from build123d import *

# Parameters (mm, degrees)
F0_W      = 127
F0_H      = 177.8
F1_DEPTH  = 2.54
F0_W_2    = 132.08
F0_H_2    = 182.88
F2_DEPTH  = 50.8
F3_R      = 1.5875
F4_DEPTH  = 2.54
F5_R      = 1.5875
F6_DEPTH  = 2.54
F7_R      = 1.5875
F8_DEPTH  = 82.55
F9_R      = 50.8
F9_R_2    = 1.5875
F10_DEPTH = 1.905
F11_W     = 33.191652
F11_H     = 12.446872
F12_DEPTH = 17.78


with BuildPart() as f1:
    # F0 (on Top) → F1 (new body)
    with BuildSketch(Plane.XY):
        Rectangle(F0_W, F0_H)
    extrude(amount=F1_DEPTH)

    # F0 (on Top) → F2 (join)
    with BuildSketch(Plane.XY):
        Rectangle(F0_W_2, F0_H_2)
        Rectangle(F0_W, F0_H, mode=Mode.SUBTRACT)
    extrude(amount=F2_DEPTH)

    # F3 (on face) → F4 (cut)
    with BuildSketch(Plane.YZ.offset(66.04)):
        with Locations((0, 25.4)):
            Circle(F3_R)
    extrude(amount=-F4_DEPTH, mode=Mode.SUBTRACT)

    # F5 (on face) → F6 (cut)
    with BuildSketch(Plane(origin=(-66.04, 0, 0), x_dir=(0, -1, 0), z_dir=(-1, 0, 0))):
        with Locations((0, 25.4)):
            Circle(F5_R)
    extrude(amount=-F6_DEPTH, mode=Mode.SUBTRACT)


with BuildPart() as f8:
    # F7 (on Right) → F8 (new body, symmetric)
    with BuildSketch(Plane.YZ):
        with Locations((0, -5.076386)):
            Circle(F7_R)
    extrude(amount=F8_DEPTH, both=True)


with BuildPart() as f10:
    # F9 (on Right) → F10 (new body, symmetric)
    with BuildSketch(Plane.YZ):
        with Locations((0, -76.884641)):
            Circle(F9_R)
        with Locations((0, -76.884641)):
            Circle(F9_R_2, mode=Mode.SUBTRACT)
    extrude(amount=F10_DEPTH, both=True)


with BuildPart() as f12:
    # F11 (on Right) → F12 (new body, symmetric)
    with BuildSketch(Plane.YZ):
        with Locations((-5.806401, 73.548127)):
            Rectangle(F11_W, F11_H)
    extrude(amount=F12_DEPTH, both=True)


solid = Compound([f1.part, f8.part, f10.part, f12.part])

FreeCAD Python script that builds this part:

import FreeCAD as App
import Part
import Sketcher
from FreeCAD import Vector
Q = App.Units.Quantity

doc = App.newDocument("Part")
body = doc.addObject("PartDesign::Body", "Body")

# Sketch on XY plane
sketch1 = body.newObject("Sketcher::SketchObject", "Sketch")
sketch1.AttachmentSupport = (doc.getObject("XY_Plane"), [""])
sketch1.MapMode = "FlatFace"
sketch1.addGeometry([
    Part.LineSegment(Vector(-63.5, 88.9, 0), Vector(-63.5, -88.9, 0)),
    Part.LineSegment(Vector(-63.5, -88.9, 0), Vector(63.5, -88.9, 0)),
    Part.LineSegment(Vector(63.5, -88.9, 0), Vector(63.5, 88.9, 0)),
    Part.LineSegment(Vector(63.5, 88.9, 0), Vector(-63.5, 88.9, 0)),
], False)
sketch1.addConstraint([
    Sketcher.Constraint("Coincident", 0, 2, 1, 1),
    Sketcher.Constraint("Coincident", 1, 2, 2, 1),
    Sketcher.Constraint("Coincident", 2, 2, 3, 1),
    Sketcher.Constraint("Coincident", 3, 2, 0, 1),
    Sketcher.Constraint("Vertical", 0),
    Sketcher.Constraint("Horizontal", 1),
    Sketcher.Constraint("Vertical", 2),
    Sketcher.Constraint("Horizontal", 3),
    Sketcher.Constraint("Symmetric", 0, 2, 2, 2, -1, 1),
    Sketcher.Constraint("DistanceX", 1, 1, 1, 2, Q("5 in")),
    Sketcher.Constraint("DistanceY", 0, 2, 0, 1, Q("7 in")),
])
pad1 = body.newObject("PartDesign::Pad", "Pad")
pad1.Profile = sketch1
pad1.Length = Q("0.1 in")

# Sketch on XY plane
sketch2 = body.newObject("Sketcher::SketchObject", "Sketch001")
sketch2.AttachmentSupport = (doc.getObject("XY_Plane"), [""])
sketch2.MapMode = "FlatFace"
sketch2.addGeometry([
    Part.LineSegment(Vector(-66.04, 91.44, 0), Vector(-66.04, -91.44, 0)),  # 0
    Part.LineSegment(Vector(-66.04, -91.44, 0), Vector(66.04, -91.44, 0)),  # 1
    Part.LineSegment(Vector(66.04, -91.44, 0), Vector(66.04, 91.44, 0)),  # 2
    Part.LineSegment(Vector(66.04, 91.44, 0), Vector(-66.04, 91.44, 0)),  # 3
    Part.LineSegment(Vector(63.5, -88.9, 0), Vector(-63.5, -88.9, 0)),  # 4
    Part.LineSegment(Vector(-63.5, -88.9, 0), Vector(-63.5, 88.9, 0)),  # 5
    Part.LineSegment(Vector(-63.5, 88.9, 0), Vector(63.5, 88.9, 0)),  # 6
    Part.LineSegment(Vector(63.5, 88.9, 0), Vector(63.5, -88.9, 0)),  # 7
], False)
sketch2.addConstraint([
    Sketcher.Constraint("Coincident", 0, 2, 1, 1),
    Sketcher.Constraint("Coincident", 1, 2, 2, 1),
    Sketcher.Constraint("Coincident", 2, 2, 3, 1),
    Sketcher.Constraint("Coincident", 3, 2, 0, 1),
    Sketcher.Constraint("Coincident", 4, 2, 5, 1),
    Sketcher.Constraint("Coincident", 5, 2, 6, 1),
    Sketcher.Constraint("Coincident", 6, 2, 7, 1),
    Sketcher.Constraint("Coincident", 7, 2, 4, 1),
    Sketcher.Constraint("Vertical", 0),
    Sketcher.Constraint("Horizontal", 1),
    Sketcher.Constraint("Vertical", 2),
    Sketcher.Constraint("Horizontal", 3),
    Sketcher.Constraint("Horizontal", 4),
    Sketcher.Constraint("Vertical", 5),
    Sketcher.Constraint("Horizontal", 6),
    Sketcher.Constraint("Vertical", 7),
    Sketcher.Constraint("Symmetric", 0, 2, 2, 2, -1, 1),
    Sketcher.Constraint("Symmetric", 4, 2, 6, 2, -1, 1),
    Sketcher.Constraint("DistanceX", 4, 2, 4, 1, Q("5 in")),
    Sketcher.Constraint("DistanceY", 5, 1, 5, 2, Q("7 in")),
    Sketcher.Constraint("DistanceX", 1, 1, 1, 2, Q("5.2 in")),
    Sketcher.Constraint("DistanceY", 0, 2, 0, 1, Q("7.2 in")),
])
pad2 = body.newObject("PartDesign::Pad", "Pad001")
pad2.Profile = sketch2
pad2.Length = Q("2 in")

# Sketch on YZ plane
sketch3 = body.newObject("Sketcher::SketchObject", "Sketch002")
sketch3.AttachmentSupport = (doc.getObject("YZ_Plane"), [""])
sketch3.MapMode = "FlatFace"
sketch3.AttachmentOffset = App.Placement(Vector(0, 0, 2.6 * 25.4), App.Rotation())
sketch3.addGeometry(Part.Circle(Vector(0, 25.4, 0), Vector(0, 0, 1), 1.5875), False)
sketch3.addConstraint([
    Sketcher.Constraint("PointOnObject", 0, 3, -2),
    Sketcher.Constraint("Diameter", 0, Q("0.125 in")),
    Sketcher.Constraint("DistanceY", -1, 1, 0, 3, Q("1 in")),
])
pocket1 = body.newObject("PartDesign::Pocket", "Pocket")
pocket1.Profile = sketch3
pocket1.Length = Q("0.1 in")

# Sketch on YZ plane
sketch4 = body.newObject("Sketcher::SketchObject", "Sketch003")
sketch4.AttachmentSupport = (doc.getObject("YZ_Plane"), [""])
sketch4.MapMode = "FlatFace"
sketch4.AttachmentOffset = App.Placement(Vector(0, 0, -2.6 * 25.4), App.Rotation())
sketch4.addGeometry(Part.Circle(Vector(0, 25.4, 0), Vector(0, 0, 1), 1.5875), False)
sketch4.addConstraint([
    Sketcher.Constraint("PointOnObject", 0, 3, -2),
    Sketcher.Constraint("Diameter", 0, Q("0.125 in")),
    Sketcher.Constraint("DistanceY", -1, 1, 0, 3, Q("1 in")),
])
pocket2 = body.newObject("PartDesign::Pocket", "Pocket001")
pocket2.Profile = sketch4
pocket2.Length = Q("0.1 in")
pocket2.Reversed = True
body2 = doc.addObject("PartDesign::Body", "Body001")

# Sketch on YZ plane
sketch5 = body2.newObject("Sketcher::SketchObject", "Sketch004")
sketch5.AttachmentSupport = (doc.getObject("YZ_Plane001"), [""])
sketch5.MapMode = "FlatFace"
sketch5.addGeometry(Part.Circle(Vector(0, -5.076386, 0), Vector(0, 0, 1), 1.5875), False)
sketch5.addConstraint([
    Sketcher.Constraint("PointOnObject", 0, 3, -2),
    Sketcher.Constraint("Diameter", 0, Q("0.125 in")),
    Sketcher.Constraint("DistanceY", 0, 3, -1, 1, Q("5.076386 mm")),
])
pad3 = body2.newObject("PartDesign::Pad", "Pad002")
pad3.Profile = sketch5
pad3.Length = Q("6.5 in")
pad3.Midplane = True
body3 = doc.addObject("PartDesign::Body", "Body002")

# Sketch on YZ plane
sketch6 = body3.newObject("Sketcher::SketchObject", "Sketch005")
sketch6.AttachmentSupport = (doc.getObject("YZ_Plane002"), [""])
sketch6.MapMode = "FlatFace"
sketch6.addGeometry([
    Part.Circle(Vector(0, -76.884641, 0), Vector(0, 0, 1), 50.8),
    Part.Circle(Vector(0, -76.884641, 0), Vector(0, 0, 1), 1.5875),
], False)
sketch6.addConstraint([
    Sketcher.Constraint("Coincident", 1, 3, 0, 3),
    Sketcher.Constraint("PointOnObject", 0, 3, -2),
    Sketcher.Constraint("Diameter", 0, Q("4 in")),
    Sketcher.Constraint("Diameter", 1, Q("0.125 in")),
    Sketcher.Constraint("DistanceY", 0, 3, -1, 1, Q("76.884641 mm")),
])
pad4 = body3.newObject("PartDesign::Pad", "Pad003")
pad4.Profile = sketch6
pad4.Length = Q("0.15 in")
pad4.Midplane = True
body4 = doc.addObject("PartDesign::Body", "Body003")

# Sketch on YZ plane
sketch7 = body4.newObject("Sketcher::SketchObject", "Sketch006")
sketch7.AttachmentSupport = (doc.getObject("YZ_Plane003"), [""])
sketch7.MapMode = "FlatFace"
sketch7.addGeometry([
    Part.LineSegment(Vector(-22.402227, 79.771563, 0), Vector(-22.402227, 67.324691, 0)),
    Part.LineSegment(Vector(-22.402227, 67.324691, 0), Vector(10.789425, 67.324691, 0)),
    Part.LineSegment(Vector(10.789425, 67.324691, 0), Vector(10.789425, 79.771563, 0)),
    Part.LineSegment(Vector(10.789425, 79.771563, 0), Vector(-22.402227, 79.771563, 0)),
], False)
sketch7.addConstraint([
    Sketcher.Constraint("Coincident", 0, 2, 1, 1),
    Sketcher.Constraint("Coincident", 1, 2, 2, 1),
    Sketcher.Constraint("Coincident", 2, 2, 3, 1),
    Sketcher.Constraint("Coincident", 3, 2, 0, 1),
    Sketcher.Constraint("Vertical", 0),
    Sketcher.Constraint("Horizontal", 1),
    Sketcher.Constraint("Vertical", 2),
    Sketcher.Constraint("Horizontal", 3),
    Sketcher.Constraint("DistanceX", 1, 1, 1, 2, Q("33.191652 mm")),
    Sketcher.Constraint("DistanceY", 0, 2, 0, 1, Q("12.446872 mm")),
    Sketcher.Constraint("DistanceY", -1, 1, 0, 2, Q("67.324691 mm")),
    Sketcher.Constraint("DistanceX", 0, 2, -1, 1, Q("22.402227 mm")),
])
pad5 = body4.newObject("PartDesign::Pad", "Pad004")
pad5.Profile = sketch7
pad5.Length = Q("1.4 in")
pad5.Midplane = True

doc.recompute()
